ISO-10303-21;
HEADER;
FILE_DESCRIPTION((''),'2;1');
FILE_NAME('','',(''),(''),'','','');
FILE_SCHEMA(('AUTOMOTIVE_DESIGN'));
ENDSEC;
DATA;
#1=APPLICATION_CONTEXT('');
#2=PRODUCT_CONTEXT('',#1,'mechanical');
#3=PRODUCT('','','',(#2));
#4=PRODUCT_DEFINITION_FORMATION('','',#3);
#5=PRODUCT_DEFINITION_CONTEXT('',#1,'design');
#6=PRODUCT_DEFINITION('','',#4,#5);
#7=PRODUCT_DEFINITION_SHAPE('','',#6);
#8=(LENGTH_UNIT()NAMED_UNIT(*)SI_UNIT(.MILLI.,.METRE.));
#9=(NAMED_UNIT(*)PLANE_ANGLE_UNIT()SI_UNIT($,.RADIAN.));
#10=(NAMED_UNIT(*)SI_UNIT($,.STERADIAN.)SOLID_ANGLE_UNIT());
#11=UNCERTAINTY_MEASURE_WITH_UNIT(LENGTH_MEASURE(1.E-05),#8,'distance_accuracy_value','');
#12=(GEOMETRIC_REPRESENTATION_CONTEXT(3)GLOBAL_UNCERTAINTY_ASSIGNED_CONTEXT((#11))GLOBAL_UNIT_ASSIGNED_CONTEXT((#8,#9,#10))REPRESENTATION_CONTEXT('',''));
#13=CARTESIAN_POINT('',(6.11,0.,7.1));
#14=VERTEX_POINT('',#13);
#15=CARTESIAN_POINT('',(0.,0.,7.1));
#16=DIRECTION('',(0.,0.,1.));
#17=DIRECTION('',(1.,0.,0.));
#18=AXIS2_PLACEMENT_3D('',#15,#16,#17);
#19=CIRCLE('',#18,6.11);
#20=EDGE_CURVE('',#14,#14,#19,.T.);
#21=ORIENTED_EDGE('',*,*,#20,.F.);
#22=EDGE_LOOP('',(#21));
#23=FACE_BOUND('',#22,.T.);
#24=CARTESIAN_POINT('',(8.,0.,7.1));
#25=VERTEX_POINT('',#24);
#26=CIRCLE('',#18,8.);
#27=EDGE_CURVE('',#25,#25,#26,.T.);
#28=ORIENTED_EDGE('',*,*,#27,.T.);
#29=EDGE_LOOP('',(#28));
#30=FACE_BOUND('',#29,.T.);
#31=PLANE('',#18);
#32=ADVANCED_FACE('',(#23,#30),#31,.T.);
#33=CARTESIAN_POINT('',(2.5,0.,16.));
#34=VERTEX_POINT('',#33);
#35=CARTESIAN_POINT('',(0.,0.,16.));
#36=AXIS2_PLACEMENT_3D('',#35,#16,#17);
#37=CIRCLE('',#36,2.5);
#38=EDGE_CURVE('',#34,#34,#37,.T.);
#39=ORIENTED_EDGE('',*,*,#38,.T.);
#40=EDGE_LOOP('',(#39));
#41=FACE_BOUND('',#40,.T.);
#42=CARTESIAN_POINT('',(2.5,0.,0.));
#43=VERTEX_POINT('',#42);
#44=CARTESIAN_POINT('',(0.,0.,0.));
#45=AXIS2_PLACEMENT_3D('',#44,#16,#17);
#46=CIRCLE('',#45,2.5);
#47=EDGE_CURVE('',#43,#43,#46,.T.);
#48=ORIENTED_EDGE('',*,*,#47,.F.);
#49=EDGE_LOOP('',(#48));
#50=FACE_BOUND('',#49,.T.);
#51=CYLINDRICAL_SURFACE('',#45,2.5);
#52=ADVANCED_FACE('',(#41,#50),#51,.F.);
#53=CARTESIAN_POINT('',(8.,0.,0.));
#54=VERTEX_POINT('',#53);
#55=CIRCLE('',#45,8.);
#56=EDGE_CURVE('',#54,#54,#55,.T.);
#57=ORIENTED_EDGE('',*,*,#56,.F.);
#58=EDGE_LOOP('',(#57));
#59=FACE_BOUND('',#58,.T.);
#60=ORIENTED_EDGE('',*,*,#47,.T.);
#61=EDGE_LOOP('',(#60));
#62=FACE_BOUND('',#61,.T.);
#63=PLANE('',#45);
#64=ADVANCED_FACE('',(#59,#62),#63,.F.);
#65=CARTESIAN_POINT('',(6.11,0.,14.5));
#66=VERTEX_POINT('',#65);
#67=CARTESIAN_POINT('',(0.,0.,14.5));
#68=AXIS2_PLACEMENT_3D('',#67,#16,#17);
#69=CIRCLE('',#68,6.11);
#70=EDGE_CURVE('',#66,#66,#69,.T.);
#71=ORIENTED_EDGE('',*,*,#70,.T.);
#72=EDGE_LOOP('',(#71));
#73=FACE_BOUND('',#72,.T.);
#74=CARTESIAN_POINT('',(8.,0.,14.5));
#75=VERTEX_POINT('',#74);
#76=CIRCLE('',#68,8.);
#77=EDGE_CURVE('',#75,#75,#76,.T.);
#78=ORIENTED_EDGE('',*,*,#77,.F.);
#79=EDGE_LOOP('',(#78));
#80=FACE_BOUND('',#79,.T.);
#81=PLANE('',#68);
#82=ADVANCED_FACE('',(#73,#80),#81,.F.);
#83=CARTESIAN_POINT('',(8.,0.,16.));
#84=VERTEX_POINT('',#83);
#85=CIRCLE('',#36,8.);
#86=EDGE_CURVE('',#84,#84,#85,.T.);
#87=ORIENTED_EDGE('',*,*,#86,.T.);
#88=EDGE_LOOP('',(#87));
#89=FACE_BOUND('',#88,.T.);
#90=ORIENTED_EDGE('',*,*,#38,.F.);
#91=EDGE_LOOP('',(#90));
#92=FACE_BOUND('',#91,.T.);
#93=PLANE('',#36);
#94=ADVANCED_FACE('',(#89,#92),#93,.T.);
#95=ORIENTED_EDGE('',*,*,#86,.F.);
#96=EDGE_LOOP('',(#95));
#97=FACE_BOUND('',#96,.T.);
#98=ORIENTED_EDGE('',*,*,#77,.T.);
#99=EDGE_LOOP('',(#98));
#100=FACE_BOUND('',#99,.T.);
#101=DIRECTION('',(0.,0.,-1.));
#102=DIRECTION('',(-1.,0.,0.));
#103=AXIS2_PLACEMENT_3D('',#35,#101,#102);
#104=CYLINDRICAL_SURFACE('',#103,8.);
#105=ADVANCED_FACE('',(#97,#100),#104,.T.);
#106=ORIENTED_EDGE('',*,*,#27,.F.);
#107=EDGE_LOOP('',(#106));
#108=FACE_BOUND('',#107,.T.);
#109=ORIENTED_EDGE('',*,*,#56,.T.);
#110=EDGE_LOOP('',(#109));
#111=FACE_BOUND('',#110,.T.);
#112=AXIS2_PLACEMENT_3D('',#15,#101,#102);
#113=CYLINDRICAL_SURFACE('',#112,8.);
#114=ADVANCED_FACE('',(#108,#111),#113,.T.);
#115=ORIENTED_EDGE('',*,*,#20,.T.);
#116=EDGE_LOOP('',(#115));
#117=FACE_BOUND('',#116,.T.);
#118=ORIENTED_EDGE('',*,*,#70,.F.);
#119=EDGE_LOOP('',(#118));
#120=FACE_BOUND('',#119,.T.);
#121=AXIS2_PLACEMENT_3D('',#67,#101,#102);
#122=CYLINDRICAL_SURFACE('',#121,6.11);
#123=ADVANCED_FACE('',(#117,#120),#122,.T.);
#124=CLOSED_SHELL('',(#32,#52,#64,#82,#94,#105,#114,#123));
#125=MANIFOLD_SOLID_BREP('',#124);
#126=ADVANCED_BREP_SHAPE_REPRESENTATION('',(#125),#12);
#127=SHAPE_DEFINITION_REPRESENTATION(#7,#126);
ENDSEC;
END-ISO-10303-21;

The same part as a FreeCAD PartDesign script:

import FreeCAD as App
import Part
import Sketcher

V = App.Vector

doc = App.newDocument("Part")
body = doc.addObject("PartDesign::Body", "Body")

sketch1 = body.newObject("Sketcher::SketchObject", "Sketch")
sketch1.AttachmentSupport = (doc.getObject("XY_Plane"), [""])
sketch1.MapMode = "FlatFace"
sketch1.addGeometry(Part.Circle(V(0, 0, 0), V(0, 0, 1), 8), False)
sketch1.addConstraint(Sketcher.Constraint("Coincident", 0, 3, -1, 1))
sketch1.addConstraint(Sketcher.Constraint("Diameter", 0, 16.0))
pad1 = body.newObject("PartDesign::Pad", "Pad")
pad1.Profile = sketch1
pad1.Length = 7.1

sketch2 = body.newObject("Sketcher::SketchObject", "Sketch001")
sketch2.AttachmentSupport = (doc.getObject("XY_Plane"), [""])
sketch2.MapMode = "FlatFace"
sketch2.AttachmentOffset = App.Placement(V(0, 0, 7.1), App.Rotation())
sketch2.addGeometry(Part.Circle(V(0, 0, 0), V(0, 0, 1), 6), False)
sketch2.addConstraint(Sketcher.Constraint("Coincident", 0, 3, -1, 1))
sketch2.addConstraint(Sketcher.Constraint("Diameter", 0, 12.22))
pad2 = body.newObject("PartDesign::Pad", "Pad001")
pad2.Profile = sketch2
pad2.Length = 7.4

sketch3 = body.newObject("Sketcher::SketchObject", "Sketch002")
sketch3.AttachmentSupport = (doc.getObject("XY_Plane"), [""])
sketch3.MapMode = "FlatFace"
sketch3.AttachmentOffset = App.Placement(V(0, 0, 14.5), App.Rotation())
sketch3.addGeometry(Part.Circle(V(0, 0, 0), V(0, 0, 1), 8), False)
sketch3.addConstraint(Sketcher.Constraint("Coincident", 0, 3, -1, 1))
sketch3.addConstraint(Sketcher.Constraint("Diameter", 0, 16.0))
pad3 = body.newObject("PartDesign::Pad", "Pad002")
pad3.Profile = sketch3
pad3.Length = 1.5

sketch4 = body.newObject("Sketcher::SketchObject", "Sketch003")
sketch4.AttachmentSupport = (doc.getObject("XY_Plane"), [""])
sketch4.MapMode = "FlatFace"
sketch4.AttachmentOffset = App.Placement(V(0, 0, 16), App.Rotation())
sketch4.addGeometry(Part.Circle(V(0, 0, 0), V(0, 0, 1), 2.5), False)
sketch4.addConstraint(Sketcher.Constraint("Coincident", 0, 3, -1, 1))
sketch4.addConstraint(Sketcher.Constraint("Diameter", 0, 5.0))
pocket1 = body.newObject("PartDesign::Pocket", "Pocket")
pocket1.Profile = sketch4
pocket1.Type = "ThroughAll"

doc.recompute()
